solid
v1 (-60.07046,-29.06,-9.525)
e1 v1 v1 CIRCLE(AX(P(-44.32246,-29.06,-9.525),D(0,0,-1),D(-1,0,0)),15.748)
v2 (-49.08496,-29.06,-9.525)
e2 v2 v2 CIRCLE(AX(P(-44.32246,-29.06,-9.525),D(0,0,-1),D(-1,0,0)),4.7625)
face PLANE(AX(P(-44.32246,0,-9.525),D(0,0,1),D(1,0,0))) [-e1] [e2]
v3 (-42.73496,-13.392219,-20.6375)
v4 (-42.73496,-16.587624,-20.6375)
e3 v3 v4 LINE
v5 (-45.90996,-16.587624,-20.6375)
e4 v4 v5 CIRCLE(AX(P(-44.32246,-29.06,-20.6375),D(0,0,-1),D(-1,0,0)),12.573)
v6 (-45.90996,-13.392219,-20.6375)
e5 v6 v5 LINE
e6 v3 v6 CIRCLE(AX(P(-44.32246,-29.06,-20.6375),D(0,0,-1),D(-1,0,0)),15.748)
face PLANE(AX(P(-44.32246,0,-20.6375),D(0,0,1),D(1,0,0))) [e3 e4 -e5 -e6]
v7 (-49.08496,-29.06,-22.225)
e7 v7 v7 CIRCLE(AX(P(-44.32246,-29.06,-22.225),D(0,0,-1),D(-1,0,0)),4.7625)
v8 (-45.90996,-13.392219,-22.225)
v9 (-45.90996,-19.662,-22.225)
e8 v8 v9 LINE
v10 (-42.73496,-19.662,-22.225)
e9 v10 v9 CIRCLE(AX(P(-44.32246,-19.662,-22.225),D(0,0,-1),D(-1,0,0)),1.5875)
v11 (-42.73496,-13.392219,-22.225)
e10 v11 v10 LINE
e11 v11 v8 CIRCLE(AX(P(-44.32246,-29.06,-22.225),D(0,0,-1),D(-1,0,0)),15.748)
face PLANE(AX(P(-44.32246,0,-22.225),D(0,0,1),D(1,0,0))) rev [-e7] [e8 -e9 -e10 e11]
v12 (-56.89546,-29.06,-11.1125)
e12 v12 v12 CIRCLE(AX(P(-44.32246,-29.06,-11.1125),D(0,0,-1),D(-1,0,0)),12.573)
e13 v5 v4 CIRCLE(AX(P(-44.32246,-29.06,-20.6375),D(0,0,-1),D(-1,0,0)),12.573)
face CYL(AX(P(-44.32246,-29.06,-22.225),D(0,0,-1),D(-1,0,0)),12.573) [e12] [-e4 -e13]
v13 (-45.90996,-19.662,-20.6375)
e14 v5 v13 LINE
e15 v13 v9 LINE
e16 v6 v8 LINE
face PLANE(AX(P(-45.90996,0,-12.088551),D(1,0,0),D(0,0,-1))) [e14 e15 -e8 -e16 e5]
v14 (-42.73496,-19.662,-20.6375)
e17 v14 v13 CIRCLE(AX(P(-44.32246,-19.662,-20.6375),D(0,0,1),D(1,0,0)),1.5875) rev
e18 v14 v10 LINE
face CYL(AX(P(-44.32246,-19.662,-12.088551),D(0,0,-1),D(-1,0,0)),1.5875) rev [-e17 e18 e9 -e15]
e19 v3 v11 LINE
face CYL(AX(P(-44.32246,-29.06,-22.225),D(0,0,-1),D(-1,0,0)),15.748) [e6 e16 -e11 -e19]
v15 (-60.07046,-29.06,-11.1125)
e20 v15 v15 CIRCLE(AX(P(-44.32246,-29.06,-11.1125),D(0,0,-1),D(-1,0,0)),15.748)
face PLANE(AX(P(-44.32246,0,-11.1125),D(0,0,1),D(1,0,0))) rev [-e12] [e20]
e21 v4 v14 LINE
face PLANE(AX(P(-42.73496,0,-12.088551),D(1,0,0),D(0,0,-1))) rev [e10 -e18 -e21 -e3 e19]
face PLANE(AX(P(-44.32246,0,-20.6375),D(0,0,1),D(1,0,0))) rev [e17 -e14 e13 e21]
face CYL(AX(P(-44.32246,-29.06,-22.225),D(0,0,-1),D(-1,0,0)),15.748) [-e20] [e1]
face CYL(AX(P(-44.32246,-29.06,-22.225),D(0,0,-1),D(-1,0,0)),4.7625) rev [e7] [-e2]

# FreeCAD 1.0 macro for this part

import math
import FreeCAD as App
import Part
import Sketcher
from FreeCAD import Vector
Q = App.Units.Quantity


def add_polygon(sketch, points):
    """Adds a closed chain of lines whose ends are joined by coincident constraints."""
    first, n = sketch.GeometryCount, len(points)
    for a, b in zip(points, points[1:] + points[:1]):
        sketch.addGeometry(Part.LineSegment(App.Vector(*a, 0), App.Vector(*b, 0)), False)
    for i in range(n):
        sketch.addConstraint(Sketcher.Constraint("Coincident", first + i, 2, first + (i + 1) % n, 1))

doc = App.newDocument("Part")
body = doc.addObject("PartDesign::Body", "Body")

# Sketch on YZ plane
sketch1 = body.newObject("Sketcher::SketchObject", "Sketch")
sketch1.AttachmentSupport = (doc.getObject("YZ_Plane"), [""])
sketch1.MapMode = "FlatFace"
sketch1.AttachmentOffset = App.Placement(Vector(0, 0, -44.32246), App.Rotation())
add_polygon(sketch1, [(-13.3, -11.1), (-13.3, -9.5), (-24.3, -9.5), (-24.3, -22.2), (-13.3, -22.2), (-13.3, -20.6), (-16.5, -20.6), (-16.5, -11.1)])  # lines 0-7
sketch1.addGeometry(Part.LineSegment(Vector(-29.1, -22.2, 0), Vector(-29.1, -9.5, 0)), True)  # axis
sketch1.addConstraint(Sketcher.Constraint("Vertical", 0))
sketch1.addConstraint(Sketcher.Constraint("Horizontal", 1))
sketch1.addConstraint(Sketcher.Constraint("Vertical", 2))
sketch1.addConstraint(Sketcher.Constraint("Horizontal", 3))
sketch1.addConstraint(Sketcher.Constraint("Vertical", 4))
sketch1.addConstraint(Sketcher.Constraint("Horizontal", 5))
sketch1.addConstraint(Sketcher.Constraint("Vertical", 6))
sketch1.addConstraint(Sketcher.Constraint("Horizontal", 7))
sketch1.addConstraint(Sketcher.Constraint("Vertical", 8))
sketch1.addConstraint(Sketcher.Constraint("Horizontal", 3, 2, 8, 1))
sketch1.addConstraint(Sketcher.Constraint("Horizontal", 1, 2, 8, 2))
sketch1.addConstraint(Sketcher.Constraint("Vertical", 0, 2, 3, 2))
sketch1.addConstraint(Sketcher.Constraint("Equal", 0, 4))
sketch1.addConstraint(Sketcher.Constraint("DistanceY", 2, 2, 2, 1, Q("0.5 in")))
sketch1.addConstraint(Sketcher.Constraint("DistanceX", 5, 2, 5, 1, Q("0.125 in")))
sketch1.addConstraint(Sketcher.Constraint("DistanceY", 0, 1, 0, 2, Q("0.0625 in")))
sketch1.addConstraint(Sketcher.Constraint("DistanceX", 8, 1, 3, 2, Q("0.62 in")))
sketch1.addConstraint(Sketcher.Constraint("DistanceX", 1, 2, 1, 1, Q("0.4325 in")))
sketch1.addConstraint(Sketcher.Constraint("DistanceY", 0, 2, -1, 1, Q("0.375 in")))
sketch1.addConstraint(Sketcher.Constraint("DistanceX", 0, 2, -1, 1, 13.312))
revolution = body.newObject("PartDesign::Revolution", "Revolution")
revolution.Profile = sketch1
revolution.ReferenceAxis = (sketch1, ["Axis0"])
revolution.Angle = 360

# Sketch on XY plane
sketch2 = body.newObject("Sketcher::SketchObject", "Sketch001")
sketch2.AttachmentSupport = (doc.getObject("XY_Plane"), [""])
sketch2.MapMode = "FlatFace"
sketch2.AttachmentOffset = App.Placement(Vector(0, 0, -0.875 * 25.4), App.Rotation())
sketch2.addGeometry(Part.LineSegment(Vector(-45.9, -19.7, 0), Vector(-45.9, -13.3, 0)), False)
sketch2.addGeometry(Part.ArcOfCircle(Part.Circle(Vector(-44.3, -13.3, 0), Vector(0, 0, 1), 1.6), math.radians(0), math.radians(180)), False)
sketch2.addGeometry(Part.LineSegment(Vector(-42.7, -13.3, 0), Vector(-42.7, -19.7, 0)), False)
sketch2.addGeometry(Part.ArcOfCircle(Part.Circle(Vector(-44.3, -19.7, 0), Vector(0, 0, 1), 1.6), math.radians(180), math.radians(360)), False)
sketch2.addConstraint(Sketcher.Constraint("Tangent", 0, 2, 1, 2))
sketch2.addConstraint(Sketcher.Constraint("Tangent", 1, 1, 2, 1))
sketch2.addConstraint(Sketcher.Constraint("Tangent", 2, 2, 3, 2))
sketch2.addConstraint(Sketcher.Constraint("Tangent", 3, 1, 0, 1))
sketch2.addConstraint(Sketcher.Constraint("Vertical", 0))
sketch2.addConstraint(Sketcher.Constraint("Vertical", 2))
sketch2.addConstraint(Sketcher.Constraint("Radius", 1, Q("0.0625 in")))
sketch2.addConstraint(Sketcher.Constraint("DistanceY", 0, 1, 0, 2, Q("0.25 in")))
sketch2.addConstraint(Sketcher.Constraint("DistanceY", 1, 3, -1, 1, 13.312))
sketch2.addConstraint(Sketcher.Constraint("DistanceX", 1, 3, -1, 1, 44.32246))
pocket1 = body.newObject("PartDesign::Pocket", "Pocket")
pocket1.Profile = sketch2
pocket1.Length = Q("0.0625 in")
pocket1.Reversed = True

doc.recompute()
